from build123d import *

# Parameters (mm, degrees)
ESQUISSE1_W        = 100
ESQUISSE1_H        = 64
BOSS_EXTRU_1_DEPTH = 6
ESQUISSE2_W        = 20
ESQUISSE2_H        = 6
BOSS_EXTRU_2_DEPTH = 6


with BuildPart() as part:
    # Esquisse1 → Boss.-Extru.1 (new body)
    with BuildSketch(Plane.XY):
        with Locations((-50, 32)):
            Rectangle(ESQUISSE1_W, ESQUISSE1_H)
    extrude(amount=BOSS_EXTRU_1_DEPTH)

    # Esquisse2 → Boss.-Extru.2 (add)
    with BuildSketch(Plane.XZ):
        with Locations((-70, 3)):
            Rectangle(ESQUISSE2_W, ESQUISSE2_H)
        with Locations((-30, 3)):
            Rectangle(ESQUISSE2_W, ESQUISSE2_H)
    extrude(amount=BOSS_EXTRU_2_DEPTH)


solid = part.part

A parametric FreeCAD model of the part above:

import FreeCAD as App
import Part
import Sketcher
from FreeCAD import Vector
Q = App.Units.Quantity


def add_polygon(sketch, points):
    """Adds a closed chain of lines whose ends are joined by coincident constraints."""
    first, n = sketch.GeometryCount, len(points)
    for a, b in zip(points, points[1:] + points[:1]):
        sketch.addGeometry(Part.LineSegment(App.Vector(*a, 0), App.Vector(*b, 0)), False)
    for i in range(n):
        sketch.addConstraint(Sketcher.Constraint("Coincident", first + i, 2, first + (i + 1) % n, 1))

doc = App.newDocument("Part")
params = doc.addObject("Spreadsheet::Sheet", "Params")
for row, (alias, value) in enumerate([
    ("sketch1_width", "100 mm"),
    ("sketch1_height", "64 mm"),
    ("pad1_length", "6 mm"),
    ("sketch2_width", "20 mm"),
    ("sketch2_height", "6 mm"),
    ("pad2_length", "6 mm"),
], start=1):
    params.set(f"A{row}", alias)
    params.set(f"B{row}", "=" + value)
    params.setAlias(f"B{row}", alias)

body = doc.addObject("PartDesign::Body", "Body")

# Sketch on XY plane
sketch1 = body.newObject("Sketcher::SketchObject", "Sketch")
sketch1.AttachmentSupport = (doc.getObject("XY_Plane"), [""])
sketch1.MapMode = "FlatFace"
add_polygon(sketch1, [(-100, 64), (-100, 0), (0, 0), (0, 64)])  # lines 0-3
sketch1.addConstraint([
    Sketcher.Constraint("Vertical", 0),
    Sketcher.Constraint("Horizontal", 1),
    Sketcher.Constraint("Vertical", 2),
    Sketcher.Constraint("Horizontal", 3),
    Sketcher.Constraint("Coincident", 1, 2, -1, 1),
    Sketcher.Constraint("DistanceX", 1, 1, 1, 2, Q("100 mm")),
    Sketcher.Constraint("DistanceY", 0, 2, 0, 1, Q("64 mm")),
])
sketch1.setExpression("Constraints[9]", "Params.sketch1_width")
sketch1.setExpression("Constraints[10]", "Params.sketch1_height")
pad1 = body.newObject("PartDesign::Pad", "Pad")
pad1.Profile = sketch1
pad1.setExpression("Length", "Params.pad1_length")

# Sketch on XZ plane
sketch2 = body.newObject("Sketcher::SketchObject", "Sketch001")
sketch2.AttachmentSupport = (doc.getObject("XZ_Plane"), [""])
sketch2.MapMode = "FlatFace"
add_polygon(sketch2, [(-80, 6), (-80, 0), (-60, 0), (-60, 6)])  # lines 0-3
add_polygon(sketch2, [(-40, 6), (-40, 0), (-20, 0), (-20, 6)])  # lines 4-7
sketch2.addConstraint([
    Sketcher.Constraint("Vertical", 0),
    Sketcher.Constraint("Horizontal", 1),
    Sketcher.Constraint("Vertical", 2),
    Sketcher.Constraint("Horizontal", 3),
    Sketcher.Constraint("Vertical", 4),
    Sketcher.Constraint("Horizontal", 5),
    Sketcher.Constraint("Vertical", 6),
    Sketcher.Constraint("Horizontal", 7),
    Sketcher.Constraint("PointOnObject", 0, 2, -1),
    Sketcher.Constraint("PointOnObject", 4, 2, -1),
    Sketcher.Constraint("Horizontal", 3, 2, 6, 2),
    Sketcher.Constraint("Equal", 3, 5),
    Sketcher.Constraint("DistanceX", 1, 1, 1, 2, Q("20 mm")),
    Sketcher.Constraint("DistanceY", 0, 2, 0, 1, Q("6 mm")),
    Sketcher.Constraint("DistanceX", 0, 2, -1, 1, Q("80 mm")),
    Sketcher.Constraint("DistanceX", 4, 2, -1, 1, Q("40 mm")),
])
sketch2.setExpression("Constraints[20]", "Params.sketch2_width")
sketch2.setExpression("Constraints[21]", "Params.sketch2_height")
pad2 = body.newObject("PartDesign::Pad", "Pad001")
pad2.Profile = sketch2
pad2.setExpression("Length", "Params.pad2_length")

doc.recompute()
